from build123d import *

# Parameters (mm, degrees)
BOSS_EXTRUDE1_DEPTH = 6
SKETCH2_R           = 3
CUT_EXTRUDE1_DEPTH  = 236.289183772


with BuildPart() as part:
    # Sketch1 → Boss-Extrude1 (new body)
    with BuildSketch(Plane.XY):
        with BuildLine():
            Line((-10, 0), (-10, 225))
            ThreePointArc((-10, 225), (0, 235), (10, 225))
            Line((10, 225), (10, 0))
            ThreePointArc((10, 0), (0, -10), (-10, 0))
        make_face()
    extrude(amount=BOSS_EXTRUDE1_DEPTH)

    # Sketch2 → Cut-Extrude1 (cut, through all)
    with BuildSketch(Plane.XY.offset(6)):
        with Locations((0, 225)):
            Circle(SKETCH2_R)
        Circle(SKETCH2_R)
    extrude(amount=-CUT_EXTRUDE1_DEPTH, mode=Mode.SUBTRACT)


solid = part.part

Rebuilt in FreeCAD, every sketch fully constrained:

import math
import FreeCAD as App
import Part
import Sketcher

V = App.Vector

doc = App.newDocument("Part")
body = doc.addObject("PartDesign::Body", "Body")

# Sketch on XY plane
sketch1 = body.newObject("Sketcher::SketchObject", "Sketch")
sketch1.AttachmentSupport = (doc.getObject("XY_Plane"), [""])
sketch1.MapMode = "FlatFace"
sketch1.addGeometry([
    Part.LineSegment(V(-10, 225, 0), V(-10, 0, 0)),
    Part.ArcOfCircle(Part.Circle(V(0, 0, 0), V(0, 0, 1), 10), math.radians(180), math.radians(360)),
    Part.LineSegment(V(10, 0, 0), V(10, 225, 0)),
    Part.ArcOfCircle(Part.Circle(V(0, 225, 0), V(0, 0, 1), 10), math.radians(0), math.radians(180)),
], False)
sketch1.addConstraint([
    Sketcher.Constraint("Tangent", 0, 2, 1, 1),
    Sketcher.Constraint("Tangent", 1, 2, 2, 1),
    Sketcher.Constraint("Tangent", 2, 2, 3, 1),
    Sketcher.Constraint("Tangent", 3, 2, 0, 1),
    Sketcher.Constraint("Vertical", 0),
    Sketcher.Constraint("Vertical", 2),
    Sketcher.Constraint("Coincident", 1, 3, -1, 1),
    Sketcher.Constraint("Radius", 1, 10.0),
    Sketcher.Constraint("DistanceY", 0, 2, 0, 1, 225.0),
])
pad1 = body.newObject("PartDesign::Pad", "Pad")
pad1.Profile = sketch1
pad1.Length = 6

# Sketch on XY plane
sketch2 = body.newObject("Sketcher::SketchObject", "Sketch001")
sketch2.AttachmentSupport = (doc.getObject("XY_Plane"), [""])
sketch2.MapMode = "FlatFace"
sketch2.AttachmentOffset = App.Placement(V(0, 0, 6), App.Rotation())
sketch2.addGeometry([
    Part.Circle(V(0, 225, 0), V(0, 0, 1), 3),
    Part.Circle(V(0, 0, 0), V(0, 0, 1), 3),
], False)
sketch2.addConstraint([
    Sketcher.Constraint("Coincident", 1, 3, -1, 1),
    Sketcher.Constraint("Equal", 0, 1),
    Sketcher.Constraint("PointOnObject", 0, 3, -2),
    Sketcher.Constraint("Diameter", 0, 6.0),
    Sketcher.Constraint("DistanceY", -1, 1, 0, 3, 225.0),
])
pocket1 = body.newObject("PartDesign::Pocket", "Pocket")
pocket1.Profile = sketch2
pocket1.Type = "ThroughAll"

doc.recompute()
